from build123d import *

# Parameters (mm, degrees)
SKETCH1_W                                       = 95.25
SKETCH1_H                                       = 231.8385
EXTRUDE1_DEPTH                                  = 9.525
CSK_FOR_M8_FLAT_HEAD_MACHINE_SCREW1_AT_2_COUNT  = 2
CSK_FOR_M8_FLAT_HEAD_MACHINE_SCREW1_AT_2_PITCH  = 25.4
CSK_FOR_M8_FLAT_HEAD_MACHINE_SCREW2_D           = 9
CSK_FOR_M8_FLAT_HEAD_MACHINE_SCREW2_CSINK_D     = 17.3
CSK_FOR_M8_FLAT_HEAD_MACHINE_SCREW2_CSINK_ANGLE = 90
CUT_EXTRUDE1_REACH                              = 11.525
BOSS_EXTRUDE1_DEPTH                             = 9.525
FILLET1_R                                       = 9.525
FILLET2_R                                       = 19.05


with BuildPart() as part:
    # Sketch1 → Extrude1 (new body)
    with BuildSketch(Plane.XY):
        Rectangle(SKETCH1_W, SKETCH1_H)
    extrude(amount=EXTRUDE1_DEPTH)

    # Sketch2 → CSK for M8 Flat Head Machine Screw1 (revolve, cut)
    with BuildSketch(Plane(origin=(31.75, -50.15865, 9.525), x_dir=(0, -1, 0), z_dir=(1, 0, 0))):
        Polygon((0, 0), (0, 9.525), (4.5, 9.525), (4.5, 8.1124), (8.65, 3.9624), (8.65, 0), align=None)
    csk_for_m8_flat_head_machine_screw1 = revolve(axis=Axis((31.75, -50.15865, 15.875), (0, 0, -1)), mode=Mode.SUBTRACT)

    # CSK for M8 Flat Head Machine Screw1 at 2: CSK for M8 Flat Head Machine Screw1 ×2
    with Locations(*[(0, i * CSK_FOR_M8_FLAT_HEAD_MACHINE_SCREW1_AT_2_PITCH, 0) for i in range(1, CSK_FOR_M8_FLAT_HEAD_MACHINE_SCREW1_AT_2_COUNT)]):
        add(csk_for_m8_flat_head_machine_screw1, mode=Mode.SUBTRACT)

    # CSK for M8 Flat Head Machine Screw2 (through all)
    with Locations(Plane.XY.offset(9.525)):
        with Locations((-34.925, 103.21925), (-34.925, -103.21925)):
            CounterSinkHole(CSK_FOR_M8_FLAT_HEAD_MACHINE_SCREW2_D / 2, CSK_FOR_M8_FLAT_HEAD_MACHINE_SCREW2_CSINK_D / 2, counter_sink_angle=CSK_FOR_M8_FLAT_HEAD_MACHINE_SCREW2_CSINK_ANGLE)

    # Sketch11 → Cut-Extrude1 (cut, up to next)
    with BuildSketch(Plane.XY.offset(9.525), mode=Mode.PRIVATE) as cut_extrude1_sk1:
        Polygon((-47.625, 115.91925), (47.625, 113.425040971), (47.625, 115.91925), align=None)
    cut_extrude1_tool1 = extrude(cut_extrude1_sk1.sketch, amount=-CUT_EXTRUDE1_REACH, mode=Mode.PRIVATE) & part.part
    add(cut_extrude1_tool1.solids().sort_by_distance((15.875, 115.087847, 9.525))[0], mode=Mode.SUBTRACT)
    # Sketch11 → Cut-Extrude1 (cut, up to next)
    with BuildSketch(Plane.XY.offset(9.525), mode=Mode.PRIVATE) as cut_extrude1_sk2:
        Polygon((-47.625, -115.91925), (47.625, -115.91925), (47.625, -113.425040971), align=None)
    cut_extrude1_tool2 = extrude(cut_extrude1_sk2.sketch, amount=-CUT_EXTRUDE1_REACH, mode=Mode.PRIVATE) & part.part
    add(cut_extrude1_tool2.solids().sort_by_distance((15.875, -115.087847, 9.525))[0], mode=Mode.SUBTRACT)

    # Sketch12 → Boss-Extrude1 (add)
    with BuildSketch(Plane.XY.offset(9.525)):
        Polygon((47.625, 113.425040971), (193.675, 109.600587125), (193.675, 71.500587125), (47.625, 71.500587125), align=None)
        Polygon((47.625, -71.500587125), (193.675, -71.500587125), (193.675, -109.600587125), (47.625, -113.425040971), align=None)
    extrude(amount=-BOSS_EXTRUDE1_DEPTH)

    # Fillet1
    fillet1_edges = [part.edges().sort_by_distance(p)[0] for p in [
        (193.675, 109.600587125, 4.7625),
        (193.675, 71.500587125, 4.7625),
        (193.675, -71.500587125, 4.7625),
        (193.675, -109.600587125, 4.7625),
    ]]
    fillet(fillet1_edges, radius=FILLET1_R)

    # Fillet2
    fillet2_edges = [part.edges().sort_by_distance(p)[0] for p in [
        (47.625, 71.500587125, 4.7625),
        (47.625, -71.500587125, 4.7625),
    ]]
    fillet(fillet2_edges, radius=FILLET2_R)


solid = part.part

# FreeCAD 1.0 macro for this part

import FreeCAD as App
import Part
import Sketcher

V = App.Vector
Q = App.Units.Quantity


def edges_at(feature, points):
    """Names of the edges that pass closest to the given points."""
    edges = feature.Shape.Edges
    near = lambda p: min(range(len(edges)), key=lambda i: edges[i].distToShape(Part.Vertex(*p))[0])
    return sorted({f"Edge{near(p) + 1}" for p in points})


def add_polygon(sketch, points):
    """Adds a closed chain of lines whose ends are joined by coincident constraints."""
    first, n = sketch.GeometryCount, len(points)
    for a, b in zip(points, points[1:] + points[:1]):
        sketch.addGeometry(Part.LineSegment(App.Vector(*a, 0), App.Vector(*b, 0)), False)
    for i in range(n):
        sketch.addConstraint(Sketcher.Constraint("Coincident", first + i, 2, first + (i + 1) % n, 1))

doc = App.newDocument("Part")
body = doc.addObject("PartDesign::Body", "Body")

# Sketch on XY plane
sketch1 = body.newObject("Sketcher::SketchObject", "Sketch")
sketch1.AttachmentSupport = (doc.getObject("XY_Plane"), [""])
sketch1.MapMode = "FlatFace"
add_polygon(sketch1, [(-48, 116), (-48, -116), (48, -116), (48, 116)])  # lines 0-3
sketch1.addConstraint([
    Sketcher.Constraint("Vertical", 0),
    Sketcher.Constraint("Horizontal", 1),
    Sketcher.Constraint("Vertical", 2),
    Sketcher.Constraint("Horizontal", 3),
    Sketcher.Constraint("Symmetric", 0, 2, 2, 2, -1, 1),
    Sketcher.Constraint("DistanceX", 1, 1, 1, 2, Q("3.75 in")),
    Sketcher.Constraint("DistanceY", 0, 2, 0, 1, Q("9.1275 in")),
])
pad1 = body.newObject("PartDesign::Pad", "Pad")
pad1.Profile = sketch1
pad1.Length = Q("0.375 in")

# Sketch on YZ plane
sketch2 = body.newObject("Sketcher::SketchObject", "Sketch001")
sketch2.AttachmentSupport = (doc.getObject("YZ_Plane"), [""])
sketch2.MapMode = "FlatFace"
sketch2.AttachmentOffset = App.Placement(V(0, 0, 1.25 * 25.4), App.Rotation())
add_polygon(sketch2, [(-50.2, 0), (-50.2, 9.5), (-58.8, 9.5), (-58.8, 5.6), (-54.7, 1.4), (-54.7, 0)])  # lines 0-5
sketch2.addGeometry(Part.LineSegment(V(-50.2, 9.5, 0), V(-50.2, 0, 0)), True)  # axis
sketch2.addConstraint([
    Sketcher.Constraint("Vertical", 0),
    Sketcher.Constraint("Horizontal", 1),
    Sketcher.Constraint("Vertical", 2),
    Sketcher.Constraint("Vertical", 4),
    Sketcher.Constraint("Horizontal", 5),
    Sketcher.Constraint("Vertical", 6),
    Sketcher.Constraint("Coincident", 6, 1, 0, 2),
    Sketcher.Constraint("PointOnObject", 4, 2, -1),
    Sketcher.Constraint("PointOnObject", 6, 2, -1),
    Sketcher.Constraint("Angle", 3, Q("-45 deg")),
    Sketcher.Constraint("DistanceY", 0, 1, 0, 2, Q("0.375 in")),
    Sketcher.Constraint("DistanceY", 2, 2, 2, 1, Q("0.156 in")),
    Sketcher.Constraint("DistanceX", 1, 2, 1, 1, 8.65),
    Sketcher.Constraint("DistanceX", 5, 1, 5, 2, 4.5),
    Sketcher.Constraint("DistanceX", 0, 2, -1, 1, 50.15865),
])
groove = body.newObject("PartDesign::Groove", "Groove")
groove.Profile = sketch2
groove.ReferenceAxis = (sketch2, ["Axis0"])
groove.Angle = 360
doc.recompute()

linearpattern = body.newObject("PartDesign::LinearPattern", "LinearPattern")
linearpattern.Originals = [groove]
linearpattern.Direction = (doc.getObject("Y_Axis"), [""])
linearpattern.Mode = "offset"
linearpattern.Offset = Q("1 in")
linearpattern.Occurrences = 2
body.Tip = linearpattern

# Sketch on XY plane
sketch3 = body.newObject("Sketcher::SketchObject", "Sketch002")
sketch3.AttachmentSupport = (doc.getObject("XY_Plane"), [""])
sketch3.MapMode = "FlatFace"
sketch3.AttachmentOffset = App.Placement(V(0, 0, 0.375 * 25.4), App.Rotation())
sketch3.addGeometry([
    Part.Circle(V(-34.9, 103.2, 0), V(0, 0, 1), 4.5),
    Part.Circle(V(-34.9, -103.2, 0), V(0, 0, 1), 4.5),
], False)
sketch3.addConstraint([
    Sketcher.Constraint("Equal", 0, 1),
    Sketcher.Constraint("Symmetric", 0, 3, 1, 3, -1),
    Sketcher.Constraint("Diameter", 0, 9.0),
    Sketcher.Constraint("DistanceX", 0, 3, -1, 1, Q("1.375 in")),
    Sketcher.Constraint("DistanceY", 1, 3, 0, 3, Q("8.1275 in")),
])
doc.recompute()
hole = body.newObject("PartDesign::Hole", "Hole")
hole.Profile = sketch3
hole.ThreadType = "None"
hole.Diameter = 9
hole.DepthType = "ThroughAll"
hole.HoleCutType = "Countersink"
hole.HoleCutDiameter = 17.3
hole.HoleCutCountersinkAngle = 90

# Sketch on XY plane
sketch4 = body.newObject("Sketcher::SketchObject", "Sketch003")
sketch4.AttachmentSupport = (doc.getObject("XY_Plane"), [""])
sketch4.MapMode = "FlatFace"
sketch4.AttachmentOffset = App.Placement(V(0, 0, 0.375 * 25.4), App.Rotation())
add_polygon(sketch4, [(-47.6, 115.9), (47.6, 113.4), (47.6, 115.9)])  # lines 0-2
sketch4.addConstraint([
    Sketcher.Constraint("Vertical", 1),
    Sketcher.Constraint("Horizontal", 2),
    Sketcher.Constraint("DistanceX", 2, 2, 2, 1, Q("3.75 in")),
    Sketcher.Constraint("Angle", 0, Q("-1.5 deg")),
    Sketcher.Constraint("DistanceX", -1, 1, 0, 2, Q("1.875 in")),
    Sketcher.Constraint("DistanceY", -1, 1, 0, 2, 113.425041),
])
pocket1 = body.newObject("PartDesign::Pocket", "Pocket")
pocket1.Profile = sketch4
pocket1.Type = "UpToFirst"

# Sketch on XY plane
sketch5 = body.newObject("Sketcher::SketchObject", "Sketch004")
sketch5.AttachmentSupport = (doc.getObject("XY_Plane"), [""])
sketch5.MapMode = "FlatFace"
sketch5.AttachmentOffset = App.Placement(V(0, 0, 0.375 * 25.4), App.Rotation())
add_polygon(sketch5, [(-47.6, -115.9), (47.6, -115.9), (47.6, -113.4)])  # lines 0-2
sketch5.addConstraint([
    Sketcher.Constraint("Horizontal", 0),
    Sketcher.Constraint("Vertical", 1),
    Sketcher.Constraint("DistanceX", 0, 1, 0, 2, Q("3.75 in")),
    Sketcher.Constraint("Angle", 2, Q("-178.5 deg")),
    Sketcher.Constraint("DistanceX", -1, 1, 0, 2, Q("1.875 in")),
    Sketcher.Constraint("DistanceY", 0, 2, -1, 1, 115.91925),
])
pocket2 = body.newObject("PartDesign::Pocket", "Pocket001")
pocket2.Profile = sketch5
pocket2.Type = "UpToFirst"

# Sketch on XY plane
sketch6 = body.newObject("Sketcher::SketchObject", "Sketch005")
sketch6.AttachmentSupport = (doc.getObject("XY_Plane"), [""])
sketch6.MapMode = "FlatFace"
sketch6.AttachmentOffset = App.Placement(V(0, 0, 0.375 * 25.4), App.Rotation())
add_polygon(sketch6, [(194, 110), (48, 113), (48, 72), (194, 72)])  # lines 0-3
add_polygon(sketch6, [(194, -72), (48, -72), (48, -113), (194, -110)])  # lines 4-7
sketch6.addConstraint([
    Sketcher.Constraint("Vertical", 1),
    Sketcher.Constraint("Horizontal", 2),
    Sketcher.Constraint("Vertical", 3),
    Sketcher.Constraint("Horizontal", 4),
    Sketcher.Constraint("Vertical", 5),
    Sketcher.Constraint("Vertical", 7),
    Sketcher.Constraint("Symmetric", 1, 2, 4, 2, -1),
    Sketcher.Constraint("Symmetric", 3, 2, 6, 2, -1),
    Sketcher.Constraint("Equal", 1, 5),
    Sketcher.Constraint("DistanceY", 3, 1, 3, 2, Q("1.5 in")),
    Sketcher.Constraint("DistanceX", 2, 1, 2, 2, Q("5.75 in")),
    Sketcher.Constraint("Angle", 0, Q("178.5 deg")),
    Sketcher.Constraint("DistanceX", -1, 1, 0, 2, Q("1.875 in")),
    Sketcher.Constraint("DistanceY", -1, 1, 0, 2, 113.425041),
])
pad2 = body.newObject("PartDesign::Pad", "Pad001")
pad2.Profile = sketch6
pad2.Length = Q("0.375 in")
pad2.Reversed = True
doc.recompute()

fillet = body.newObject("PartDesign::Fillet", "Fillet")
fillet.Base = (pad2, edges_at(pad2, [
    (193.675, 109.601, 4.763),
    (193.675, 71.501, 4.763),
    (193.675, -71.501, 4.763),
    (193.675, -109.601, 4.763),
]))
fillet.Radius = Q("0.375 in")
doc.recompute()

fillet2 = body.newObject("PartDesign::Fillet", "Fillet001")
fillet2.Base = (fillet, edges_at(fillet, [(47.625, 71.501, 4.763), (47.625, -71.501, 4.763)]))
fillet2.Radius = Q("0.75 in")

doc.recompute()
